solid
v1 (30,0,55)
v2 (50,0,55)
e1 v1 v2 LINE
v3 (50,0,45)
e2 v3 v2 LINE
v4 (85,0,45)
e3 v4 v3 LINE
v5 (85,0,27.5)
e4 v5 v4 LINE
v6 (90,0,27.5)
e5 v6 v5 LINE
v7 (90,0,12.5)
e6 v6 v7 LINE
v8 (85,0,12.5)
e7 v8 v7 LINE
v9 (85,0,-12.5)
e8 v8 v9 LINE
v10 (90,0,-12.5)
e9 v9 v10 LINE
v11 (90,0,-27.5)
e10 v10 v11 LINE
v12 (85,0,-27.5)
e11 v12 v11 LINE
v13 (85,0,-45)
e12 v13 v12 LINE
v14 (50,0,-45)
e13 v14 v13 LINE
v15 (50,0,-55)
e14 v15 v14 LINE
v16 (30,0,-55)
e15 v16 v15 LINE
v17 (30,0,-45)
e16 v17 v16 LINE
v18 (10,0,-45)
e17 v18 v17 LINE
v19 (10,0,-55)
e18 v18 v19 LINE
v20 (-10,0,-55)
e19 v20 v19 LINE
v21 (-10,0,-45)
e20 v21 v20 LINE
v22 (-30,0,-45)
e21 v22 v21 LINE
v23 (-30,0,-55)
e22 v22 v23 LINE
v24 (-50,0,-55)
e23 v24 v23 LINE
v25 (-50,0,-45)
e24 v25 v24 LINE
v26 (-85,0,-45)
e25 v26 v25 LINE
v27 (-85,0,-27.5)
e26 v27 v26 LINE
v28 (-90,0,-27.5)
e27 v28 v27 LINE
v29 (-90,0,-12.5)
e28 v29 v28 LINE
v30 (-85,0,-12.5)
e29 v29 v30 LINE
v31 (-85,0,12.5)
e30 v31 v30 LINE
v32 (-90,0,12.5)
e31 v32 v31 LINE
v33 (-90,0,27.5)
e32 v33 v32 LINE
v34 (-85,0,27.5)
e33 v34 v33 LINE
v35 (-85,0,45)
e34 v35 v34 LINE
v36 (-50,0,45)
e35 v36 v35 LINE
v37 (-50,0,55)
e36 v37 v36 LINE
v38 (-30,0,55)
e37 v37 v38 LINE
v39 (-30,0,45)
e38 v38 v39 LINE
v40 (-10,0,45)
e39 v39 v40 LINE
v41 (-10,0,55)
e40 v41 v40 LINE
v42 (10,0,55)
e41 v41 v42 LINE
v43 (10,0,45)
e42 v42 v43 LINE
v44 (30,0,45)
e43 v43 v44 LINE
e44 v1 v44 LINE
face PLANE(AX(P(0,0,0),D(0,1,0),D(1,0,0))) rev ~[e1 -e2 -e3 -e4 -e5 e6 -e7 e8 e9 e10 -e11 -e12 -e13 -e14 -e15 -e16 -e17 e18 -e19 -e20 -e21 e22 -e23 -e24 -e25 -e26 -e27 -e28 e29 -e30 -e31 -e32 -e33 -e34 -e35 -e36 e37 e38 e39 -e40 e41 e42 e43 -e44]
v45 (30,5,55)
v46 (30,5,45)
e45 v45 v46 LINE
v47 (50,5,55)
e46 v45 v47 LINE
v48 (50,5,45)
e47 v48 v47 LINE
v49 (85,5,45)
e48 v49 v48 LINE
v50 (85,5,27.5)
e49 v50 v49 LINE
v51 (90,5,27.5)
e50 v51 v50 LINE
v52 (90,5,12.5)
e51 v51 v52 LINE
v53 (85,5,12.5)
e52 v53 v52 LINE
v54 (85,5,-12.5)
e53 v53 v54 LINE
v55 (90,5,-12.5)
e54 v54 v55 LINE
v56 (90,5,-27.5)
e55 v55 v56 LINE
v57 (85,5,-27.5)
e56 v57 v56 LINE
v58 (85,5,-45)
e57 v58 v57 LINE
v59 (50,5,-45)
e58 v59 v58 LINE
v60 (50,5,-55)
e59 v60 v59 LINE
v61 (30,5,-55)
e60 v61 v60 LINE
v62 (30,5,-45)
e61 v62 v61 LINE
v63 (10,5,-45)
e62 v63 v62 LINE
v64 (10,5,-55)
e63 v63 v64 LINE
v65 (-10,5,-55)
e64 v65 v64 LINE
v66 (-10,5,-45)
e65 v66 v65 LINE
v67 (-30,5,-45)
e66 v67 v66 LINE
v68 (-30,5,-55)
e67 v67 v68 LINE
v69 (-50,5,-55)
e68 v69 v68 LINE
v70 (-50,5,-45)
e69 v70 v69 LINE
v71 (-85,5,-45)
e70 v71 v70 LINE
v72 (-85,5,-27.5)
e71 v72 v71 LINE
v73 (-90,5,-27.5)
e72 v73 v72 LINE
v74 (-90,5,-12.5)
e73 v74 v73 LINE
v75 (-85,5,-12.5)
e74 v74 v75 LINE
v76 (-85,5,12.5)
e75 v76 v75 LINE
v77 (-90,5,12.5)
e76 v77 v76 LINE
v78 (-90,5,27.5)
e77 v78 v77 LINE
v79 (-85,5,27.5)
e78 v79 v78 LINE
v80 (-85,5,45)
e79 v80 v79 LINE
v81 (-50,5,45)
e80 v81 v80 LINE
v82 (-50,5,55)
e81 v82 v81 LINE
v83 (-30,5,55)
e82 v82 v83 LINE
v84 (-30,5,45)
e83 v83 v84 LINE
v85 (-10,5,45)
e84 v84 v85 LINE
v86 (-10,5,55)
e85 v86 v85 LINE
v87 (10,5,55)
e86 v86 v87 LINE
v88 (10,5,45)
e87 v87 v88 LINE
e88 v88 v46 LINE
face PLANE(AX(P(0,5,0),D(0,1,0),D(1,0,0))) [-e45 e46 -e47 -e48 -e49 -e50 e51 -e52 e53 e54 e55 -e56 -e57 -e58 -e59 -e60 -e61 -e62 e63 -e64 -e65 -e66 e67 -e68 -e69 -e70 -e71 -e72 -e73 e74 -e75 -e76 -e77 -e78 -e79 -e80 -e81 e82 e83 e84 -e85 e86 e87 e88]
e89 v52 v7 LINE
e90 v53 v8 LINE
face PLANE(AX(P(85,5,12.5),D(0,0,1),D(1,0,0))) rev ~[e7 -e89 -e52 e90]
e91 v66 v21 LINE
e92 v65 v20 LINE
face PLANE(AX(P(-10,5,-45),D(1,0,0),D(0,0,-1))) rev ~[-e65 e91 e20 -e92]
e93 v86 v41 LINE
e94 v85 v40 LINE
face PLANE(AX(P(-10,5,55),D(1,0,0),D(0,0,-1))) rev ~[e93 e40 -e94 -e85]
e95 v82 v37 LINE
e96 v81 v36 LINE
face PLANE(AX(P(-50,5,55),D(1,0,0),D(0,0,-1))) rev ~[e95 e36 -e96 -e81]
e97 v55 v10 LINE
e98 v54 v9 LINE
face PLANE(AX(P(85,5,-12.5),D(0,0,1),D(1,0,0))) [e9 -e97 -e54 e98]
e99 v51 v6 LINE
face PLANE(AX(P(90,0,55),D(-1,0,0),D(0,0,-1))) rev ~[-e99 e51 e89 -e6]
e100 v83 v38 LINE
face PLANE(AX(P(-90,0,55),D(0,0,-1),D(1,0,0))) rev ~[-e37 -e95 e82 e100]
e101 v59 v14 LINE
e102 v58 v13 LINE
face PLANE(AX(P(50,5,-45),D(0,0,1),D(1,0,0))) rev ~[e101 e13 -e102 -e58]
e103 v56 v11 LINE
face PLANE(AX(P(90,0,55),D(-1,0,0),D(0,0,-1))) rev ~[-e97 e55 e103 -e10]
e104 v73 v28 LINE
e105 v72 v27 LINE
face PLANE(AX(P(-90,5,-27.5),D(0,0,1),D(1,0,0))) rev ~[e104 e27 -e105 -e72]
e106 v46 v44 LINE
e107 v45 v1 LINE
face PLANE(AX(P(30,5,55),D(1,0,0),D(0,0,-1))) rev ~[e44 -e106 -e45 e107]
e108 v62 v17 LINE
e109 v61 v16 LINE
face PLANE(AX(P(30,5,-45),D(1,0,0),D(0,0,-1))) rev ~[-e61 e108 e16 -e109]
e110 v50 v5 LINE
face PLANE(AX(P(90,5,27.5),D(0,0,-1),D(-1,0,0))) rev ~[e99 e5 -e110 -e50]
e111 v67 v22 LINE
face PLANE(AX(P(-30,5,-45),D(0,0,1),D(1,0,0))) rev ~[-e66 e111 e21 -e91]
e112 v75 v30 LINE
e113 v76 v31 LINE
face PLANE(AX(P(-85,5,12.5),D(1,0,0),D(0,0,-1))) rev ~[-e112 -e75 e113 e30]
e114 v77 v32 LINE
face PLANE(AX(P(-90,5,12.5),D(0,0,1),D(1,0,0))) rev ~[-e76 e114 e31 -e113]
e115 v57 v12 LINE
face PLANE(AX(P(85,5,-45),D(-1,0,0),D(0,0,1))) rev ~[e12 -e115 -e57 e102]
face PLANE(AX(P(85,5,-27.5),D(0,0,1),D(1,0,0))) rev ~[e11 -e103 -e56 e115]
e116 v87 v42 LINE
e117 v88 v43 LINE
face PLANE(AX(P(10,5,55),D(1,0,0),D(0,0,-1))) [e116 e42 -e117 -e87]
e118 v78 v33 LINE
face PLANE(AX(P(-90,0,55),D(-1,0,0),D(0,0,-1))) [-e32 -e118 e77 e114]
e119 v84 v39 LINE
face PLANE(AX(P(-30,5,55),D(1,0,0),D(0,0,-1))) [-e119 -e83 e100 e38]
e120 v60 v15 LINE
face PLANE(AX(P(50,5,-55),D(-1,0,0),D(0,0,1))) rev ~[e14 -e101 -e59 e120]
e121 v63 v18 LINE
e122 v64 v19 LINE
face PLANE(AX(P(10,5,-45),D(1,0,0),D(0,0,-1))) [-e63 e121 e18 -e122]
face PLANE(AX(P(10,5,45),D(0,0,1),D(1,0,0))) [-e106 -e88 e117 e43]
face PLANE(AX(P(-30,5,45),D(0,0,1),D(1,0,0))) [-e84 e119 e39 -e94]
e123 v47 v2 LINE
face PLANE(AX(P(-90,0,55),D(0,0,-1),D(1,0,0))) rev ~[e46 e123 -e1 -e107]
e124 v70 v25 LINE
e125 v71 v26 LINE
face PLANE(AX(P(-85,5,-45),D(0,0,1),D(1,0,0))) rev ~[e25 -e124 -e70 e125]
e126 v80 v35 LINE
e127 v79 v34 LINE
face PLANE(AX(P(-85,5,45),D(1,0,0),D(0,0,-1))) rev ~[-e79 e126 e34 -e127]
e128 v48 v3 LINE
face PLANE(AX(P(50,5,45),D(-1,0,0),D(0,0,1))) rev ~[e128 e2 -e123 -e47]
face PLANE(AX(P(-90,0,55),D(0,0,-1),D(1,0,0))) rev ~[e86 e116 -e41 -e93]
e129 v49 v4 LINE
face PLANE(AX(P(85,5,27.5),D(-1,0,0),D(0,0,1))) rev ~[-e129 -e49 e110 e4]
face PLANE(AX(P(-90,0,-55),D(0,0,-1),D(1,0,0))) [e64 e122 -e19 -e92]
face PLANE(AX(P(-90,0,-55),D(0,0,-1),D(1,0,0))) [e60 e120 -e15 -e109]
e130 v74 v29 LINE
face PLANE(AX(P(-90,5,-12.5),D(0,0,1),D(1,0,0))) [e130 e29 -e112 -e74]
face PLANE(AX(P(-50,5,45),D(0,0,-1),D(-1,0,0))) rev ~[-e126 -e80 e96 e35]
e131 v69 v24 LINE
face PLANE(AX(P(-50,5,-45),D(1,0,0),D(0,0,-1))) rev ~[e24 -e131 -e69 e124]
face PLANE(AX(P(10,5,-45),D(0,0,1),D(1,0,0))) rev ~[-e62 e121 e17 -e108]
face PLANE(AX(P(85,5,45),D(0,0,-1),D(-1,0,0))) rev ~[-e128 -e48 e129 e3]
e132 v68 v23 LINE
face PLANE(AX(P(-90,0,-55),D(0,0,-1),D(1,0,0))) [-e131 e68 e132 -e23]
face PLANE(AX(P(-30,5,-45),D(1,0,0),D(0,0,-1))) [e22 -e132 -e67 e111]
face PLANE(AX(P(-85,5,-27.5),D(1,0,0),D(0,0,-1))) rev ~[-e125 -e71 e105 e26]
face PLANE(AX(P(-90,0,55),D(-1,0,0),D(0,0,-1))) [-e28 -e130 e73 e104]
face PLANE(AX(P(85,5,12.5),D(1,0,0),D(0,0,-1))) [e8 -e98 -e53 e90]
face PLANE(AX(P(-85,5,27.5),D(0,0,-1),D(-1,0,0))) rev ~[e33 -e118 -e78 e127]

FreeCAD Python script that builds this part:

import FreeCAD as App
import Part
import Sketcher

V = App.Vector

doc = App.newDocument("Part")
body = doc.addObject("PartDesign::Body", "Body")

# Sketch on XZ plane
sketch1 = doc.addObject("Sketcher::SketchObject", "Sketch")
body.addObject(sketch1)
sketch1.AttachmentSupport = (doc.XZ_Plane, [""])
sketch1.MapMode = "FlatFace"
sketch1.addGeometry([
    Part.LineSegment(V(-90, -55, 0), V(-90, 55, 0)),
    Part.LineSegment(V(-90, 55, 0), V(90, 55, 0)),
    Part.LineSegment(V(90, 55, 0), V(90, -55, 0)),
    Part.LineSegment(V(90, -55, 0), V(-90, -55, 0)),
], False)
sketch1.addConstraint([
    Sketcher.Constraint("Coincident", 0, 2, 1, 1),
    Sketcher.Constraint("Coincident", 1, 2, 2, 1),
    Sketcher.Constraint("Coincident", 2, 2, 3, 1),
    Sketcher.Constraint("Coincident", 3, 2, 0, 1),
    Sketcher.Constraint("Vertical", 0),
    Sketcher.Constraint("Horizontal", 1),
    Sketcher.Constraint("Vertical", 2),
    Sketcher.Constraint("Horizontal", 3),
    Sketcher.Constraint("Symmetric", 0, 2, 2, 2, -1, 1),
    Sketcher.Constraint("DistanceX", 1, 1, 1, 2, 180.0),
    Sketcher.Constraint("DistanceY", 0, 1, 0, 2, 110.0),
])
pad1 = doc.addObject("PartDesign::Pad", "Pad")
body.addObject(pad1)
pad1.Profile = sketch1
pad1.Length = 5
pad1.Reversed = True

# Sketch on XZ plane
sketch2 = doc.addObject("Sketcher::SketchObject", "Sketch001")
body.addObject(sketch2)
sketch2.AttachmentSupport = (doc.XZ_Plane, [""])
sketch2.MapMode = "FlatFace"
sketch2.AttachmentOffset = App.Placement(V(0, 0, -5), App.Rotation())
sketch2.addGeometry([
    Part.LineSegment(V(-90, -55, 0), V(-90, -27.5, 0)),  # 0
    Part.LineSegment(V(-90, -27.5, 0), V(-85, -27.5, 0)),  # 1
    Part.LineSegment(V(-85, -27.5, 0), V(-85, -45, 0)),  # 2
    Part.LineSegment(V(-85, -45, 0), V(-50, -45, 0)),  # 3
    Part.LineSegment(V(-50, -45, 0), V(-50, -55, 0)),  # 4
    Part.LineSegment(V(-50, -55, 0), V(-90, -55, 0)),  # 5
    Part.LineSegment(V(85, -27.5, 0), V(90, -27.5, 0)),  # 6
    Part.LineSegment(V(90, -27.5, 0), V(90, -55, 0)),  # 7
    Part.LineSegment(V(90, -55, 0), V(50, -55, 0)),  # 8
    Part.LineSegment(V(50, -55, 0), V(50, -45, 0)),  # 9
    Part.LineSegment(V(50, -45, 0), V(85, -45, 0)),  # 10
    Part.LineSegment(V(85, -45, 0), V(85, -27.5, 0)),  # 11
    Part.LineSegment(V(10, -55, 0), V(10, -45, 0)),  # 12
    Part.LineSegment(V(10, -45, 0), V(30, -45, 0)),  # 13
    Part.LineSegment(V(30, -45, 0), V(30, -55, 0)),  # 14
    Part.LineSegment(V(30, -55, 0), V(10, -55, 0)),  # 15
    Part.LineSegment(V(-30, -55, 0), V(-30, -45, 0)),  # 16
    Part.LineSegment(V(-30, -45, 0), V(-10, -45, 0)),  # 17
    Part.LineSegment(V(-10, -45, 0), V(-10, -55, 0)),  # 18
    Part.LineSegment(V(-10, -55, 0), V(-30, -55, 0)),  # 19
    Part.LineSegment(V(-90, -12.5, 0), V(-90, 12.5, 0)),  # 20
    Part.LineSegment(V(-90, 12.5, 0), V(-85, 12.5, 0)),  # 21
    Part.LineSegment(V(-85, 12.5, 0), V(-85, -12.5, 0)),  # 22
    Part.LineSegment(V(-85, -12.5, 0), V(-90, -12.5, 0)),  # 23
    Part.LineSegment(V(-90, 55, 0), V(-50, 55, 0)),  # 24
    Part.LineSegment(V(-50, 55, 0), V(-50, 45, 0)),  # 25
    Part.LineSegment(V(-50, 45, 0), V(-85, 45, 0)),  # 26
    Part.LineSegment(V(-85, 45, 0), V(-85, 27.5, 0)),  # 27
    Part.LineSegment(V(-85, 27.5, 0), V(-90, 27.5, 0)),  # 28
    Part.LineSegment(V(-90, 27.5, 0), V(-90, 55, 0)),  # 29
    Part.LineSegment(V(50, 45, 0), V(50, 55, 0)),  # 30
    Part.LineSegment(V(50, 55, 0), V(90, 55, 0)),  # 31
    Part.LineSegment(V(90, 55, 0), V(90, 27.5, 0)),  # 32
    Part.LineSegment(V(90, 27.5, 0), V(85, 27.5, 0)),  # 33
    Part.LineSegment(V(85, 27.5, 0), V(85, 45, 0)),  # 34
    Part.LineSegment(V(85, 45, 0), V(50, 45, 0)),  # 35
    Part.LineSegment(V(85, -12.5, 0), V(85, 12.5, 0)),  # 36
    Part.LineSegment(V(85, 12.5, 0), V(90, 12.5, 0)),  # 37
    Part.LineSegment(V(90, 12.5, 0), V(90, -12.5, 0)),  # 38
    Part.LineSegment(V(90, -12.5, 0), V(85, -12.5, 0)),  # 39
    Part.LineSegment(V(10, 45, 0), V(10, 55, 0)),  # 40
    Part.LineSegment(V(10, 55, 0), V(30, 55, 0)),  # 41
    Part.LineSegment(V(30, 55, 0), V(30, 45, 0)),  # 42
    Part.LineSegment(V(30, 45, 0), V(10, 45, 0)),  # 43
    Part.LineSegment(V(-30, 45, 0), V(-30, 55, 0)),  # 44
    Part.LineSegment(V(-30, 55, 0), V(-10, 55, 0)),  # 45
    Part.LineSegment(V(-10, 55, 0), V(-10, 45, 0)),  # 46
    Part.LineSegment(V(-10, 45, 0), V(-30, 45, 0)),  # 47
], False)
sketch2.addConstraint([
    Sketcher.Constraint("Coincident", 0, 2, 1, 1),
    Sketcher.Constraint("Coincident", 1, 2, 2, 1),
    Sketcher.Constraint("Coincident", 2, 2, 3, 1),
    Sketcher.Constraint("Coincident", 3, 2, 4, 1),
    Sketcher.Constraint("Coincident", 4, 2, 5, 1),
    Sketcher.Constraint("Coincident", 5, 2, 0, 1),
    Sketcher.Constraint("Coincident", 6, 2, 7, 1),
    Sketcher.Constraint("Coincident", 7, 2, 8, 1),
    Sketcher.Constraint("Coincident", 8, 2, 9, 1),
    Sketcher.Constraint("Coincident", 9, 2, 10, 1),
    Sketcher.Constraint("Coincident", 10, 2, 11, 1),
    Sketcher.Constraint("Coincident", 11, 2, 6, 1),
    Sketcher.Constraint("Coincident", 12, 2, 13, 1),
    Sketcher.Constraint("Coincident", 13, 2, 14, 1),
    Sketcher.Constraint("Coincident", 14, 2, 15, 1),
    Sketcher.Constraint("Coincident", 15, 2, 12, 1),
    Sketcher.Constraint("Coincident", 16, 2, 17, 1),
    Sketcher.Constraint("Coincident", 17, 2, 18, 1),
    Sketcher.Constraint("Coincident", 18, 2, 19, 1),
    Sketcher.Constraint("Coincident", 19, 2, 16, 1),
    Sketcher.Constraint("Coincident", 20, 2, 21, 1),
    Sketcher.Constraint("Coincident", 21, 2, 22, 1),
    Sketcher.Constraint("Coincident", 22, 2, 23, 1),
    Sketcher.Constraint("Coincident", 23, 2, 20, 1),
    Sketcher.Constraint("Coincident", 24, 2, 25, 1),
    Sketcher.Constraint("Coincident", 25, 2, 26, 1),
    Sketcher.Constraint("Coincident", 26, 2, 27, 1),
    Sketcher.Constraint("Coincident", 27, 2, 28, 1),
    Sketcher.Constraint("Coincident", 28, 2, 29, 1),
    Sketcher.Constraint("Coincident", 29, 2, 24, 1),
    Sketcher.Constraint("Coincident", 30, 2, 31, 1),
    Sketcher.Constraint("Coincident", 31, 2, 32, 1),
    Sketcher.Constraint("Coincident", 32, 2, 33, 1),
    Sketcher.Constraint("Coincident", 33, 2, 34, 1),
    Sketcher.Constraint("Coincident", 34, 2, 35, 1),
    Sketcher.Constraint("Coincident", 35, 2, 30, 1),
    Sketcher.Constraint("Coincident", 36, 2, 37, 1),
    Sketcher.Constraint("Coincident", 37, 2, 38, 1),
    Sketcher.Constraint("Coincident", 38, 2, 39, 1),
    Sketcher.Constraint("Coincident", 39, 2, 36, 1),
    Sketcher.Constraint("Coincident", 40, 2, 41, 1),
    Sketcher.Constraint("Coincident", 41, 2, 42, 1),
    Sketcher.Constraint("Coincident", 42, 2, 43, 1),
    Sketcher.Constraint("Coincident", 43, 2, 40, 1),
    Sketcher.Constraint("Coincident", 44, 2, 45, 1),
    Sketcher.Constraint("Coincident", 45, 2, 46, 1),
    Sketcher.Constraint("Coincident", 46, 2, 47, 1),
    Sketcher.Constraint("Coincident", 47, 2, 44, 1),
    Sketcher.Constraint("Vertical", 0),
    Sketcher.Constraint("Horizontal", 1),
    Sketcher.Constraint("Vertical", 2),
    Sketcher.Constraint("Horizontal", 3),
    Sketcher.Constraint("Vertical", 4),
    Sketcher.Constraint("Horizontal", 5),
    Sketcher.Constraint("Horizontal", 6),
    Sketcher.Constraint("Vertical", 7),
    Sketcher.Constraint("Horizontal", 8),
    Sketcher.Constraint("Vertical", 9),
    Sketcher.Constraint("Horizontal", 10),
    Sketcher.Constraint("Vertical", 11),
    Sketcher.Constraint("Vertical", 12),
    Sketcher.Constraint("Horizontal", 13),
    Sketcher.Constraint("Vertical", 14),
    Sketcher.Constraint("Horizontal", 15),
    Sketcher.Constraint("Vertical", 16),
    Sketcher.Constraint("Horizontal", 17),
    Sketcher.Constraint("Vertical", 18),
    Sketcher.Constraint("Horizontal", 19),
    Sketcher.Constraint("Vertical", 20),
    Sketcher.Constraint("Horizontal", 21),
    Sketcher.Constraint("Vertical", 22),
    Sketcher.Constraint("Horizontal", 23),
    Sketcher.Constraint("Horizontal", 24),
    Sketcher.Constraint("Vertical", 25),
    Sketcher.Constraint("Horizontal", 26),
    Sketcher.Constraint("Vertical", 27),
    Sketcher.Constraint("Horizontal", 28),
    Sketcher.Constraint("Vertical", 29),
    Sketcher.Constraint("Vertical", 30),
    Sketcher.Constraint("Horizontal", 31),
    Sketcher.Constraint("Vertical", 32),
    Sketcher.Constraint("Horizontal", 33),
    Sketcher.Constraint("Vertical", 34),
    Sketcher.Constraint("Horizontal", 35),
    Sketcher.Constraint("Vertical", 36),
    Sketcher.Constraint("Horizontal", 37),
    Sketcher.Constraint("Vertical", 38),
    Sketcher.Constraint("Horizontal", 39),
    Sketcher.Constraint("Vertical", 40),
    Sketcher.Constraint("Horizontal", 41),
    Sketcher.Constraint("Vertical", 42),
    Sketcher.Constraint("Horizontal", 43),
    Sketcher.Constraint("Vertical", 44),
    Sketcher.Constraint("Horizontal", 45),
    Sketcher.Constraint("Vertical", 46),
    Sketcher.Constraint("Horizontal", 47),
    Sketcher.Constraint("Symmetric", 8, 2, 24, 2, -1, 1),
    Sketcher.Constraint("Symmetric", 10, 2, 26, 2, -1, 1),
    Sketcher.Constraint("Symmetric", 6, 2, 28, 2, -1, 1),
    Sketcher.Constraint("Symmetric", 4, 2, 30, 2, -1, 1),
    Sketcher.Constraint("Symmetric", 0, 2, 32, 2, -1, 1),
    Sketcher.Constraint("Symmetric", 2, 2, 34, 2, -1, 1),
    Sketcher.Constraint("Symmetric", 22, 2, 36, 2, -1, 1),
    Sketcher.Constraint("Symmetric", 20, 2, 38, 2, -1, 1),
    Sketcher.Constraint("Symmetric", 18, 2, 40, 2, -1, 1),
    Sketcher.Constraint("Symmetric", 16, 2, 42, 2, -1, 1),
    Sketcher.Constraint("Symmetric", 14, 2, 44, 2, -1, 1),
    Sketcher.Constraint("Symmetric", 12, 2, 46, 2, -1, 1),
    Sketcher.Constraint("Symmetric", 0, 2, 6, 2, -2),
    Sketcher.Constraint("Symmetric", 4, 2, 8, 2, -2),
    Sketcher.Constraint("Symmetric", 2, 2, 10, 2, -2),
    Sketcher.Constraint("Symmetric", 13, 2, 16, 2, -2),
    Sketcher.Constraint("Symmetric", 15, 2, 18, 2, -2),
    Sketcher.Constraint("Horizontal", 10, 2, 12, 2),
    Sketcher.Constraint("Horizontal", 8, 2, 14, 2),
    Sketcher.Constraint("Horizontal", 21, 2, 36, 2),
    Sketcher.Constraint("Vertical", 5, 2, 20, 2),
    Sketcher.Constraint("Vertical", 2, 2, 21, 2),
    Sketcher.Constraint("DistanceX", 1, 1, 1, 2, 5.0),
    Sketcher.Constraint("DistanceX", 3, 1, 3, 2, 35.0),
    Sketcher.Constraint("DistanceX", 13, 1, 13, 2, 20.0),
    Sketcher.Constraint("DistanceY", 4, 2, 4, 1, 10.0),
    Sketcher.Constraint("DistanceY", 20, 1, 20, 2, 25.0),
    Sketcher.Constraint("DistanceY", 0, 1, 0, 2, 27.5),
    Sketcher.Constraint("DistanceX", 0, 2, -1, 1, 90.0),
    Sketcher.Constraint("DistanceY", 2, 2, -1, 1, 45.0),
    Sketcher.Constraint("DistanceX", -1, 1, 12, 2, 10.0),
])
pocket1 = doc.addObject("PartDesign::Pocket", "Pocket")
body.addObject(pocket1)
pocket1.Profile = sketch2
pocket1.Length = 5
pocket1.Reversed = True

doc.recompute()
